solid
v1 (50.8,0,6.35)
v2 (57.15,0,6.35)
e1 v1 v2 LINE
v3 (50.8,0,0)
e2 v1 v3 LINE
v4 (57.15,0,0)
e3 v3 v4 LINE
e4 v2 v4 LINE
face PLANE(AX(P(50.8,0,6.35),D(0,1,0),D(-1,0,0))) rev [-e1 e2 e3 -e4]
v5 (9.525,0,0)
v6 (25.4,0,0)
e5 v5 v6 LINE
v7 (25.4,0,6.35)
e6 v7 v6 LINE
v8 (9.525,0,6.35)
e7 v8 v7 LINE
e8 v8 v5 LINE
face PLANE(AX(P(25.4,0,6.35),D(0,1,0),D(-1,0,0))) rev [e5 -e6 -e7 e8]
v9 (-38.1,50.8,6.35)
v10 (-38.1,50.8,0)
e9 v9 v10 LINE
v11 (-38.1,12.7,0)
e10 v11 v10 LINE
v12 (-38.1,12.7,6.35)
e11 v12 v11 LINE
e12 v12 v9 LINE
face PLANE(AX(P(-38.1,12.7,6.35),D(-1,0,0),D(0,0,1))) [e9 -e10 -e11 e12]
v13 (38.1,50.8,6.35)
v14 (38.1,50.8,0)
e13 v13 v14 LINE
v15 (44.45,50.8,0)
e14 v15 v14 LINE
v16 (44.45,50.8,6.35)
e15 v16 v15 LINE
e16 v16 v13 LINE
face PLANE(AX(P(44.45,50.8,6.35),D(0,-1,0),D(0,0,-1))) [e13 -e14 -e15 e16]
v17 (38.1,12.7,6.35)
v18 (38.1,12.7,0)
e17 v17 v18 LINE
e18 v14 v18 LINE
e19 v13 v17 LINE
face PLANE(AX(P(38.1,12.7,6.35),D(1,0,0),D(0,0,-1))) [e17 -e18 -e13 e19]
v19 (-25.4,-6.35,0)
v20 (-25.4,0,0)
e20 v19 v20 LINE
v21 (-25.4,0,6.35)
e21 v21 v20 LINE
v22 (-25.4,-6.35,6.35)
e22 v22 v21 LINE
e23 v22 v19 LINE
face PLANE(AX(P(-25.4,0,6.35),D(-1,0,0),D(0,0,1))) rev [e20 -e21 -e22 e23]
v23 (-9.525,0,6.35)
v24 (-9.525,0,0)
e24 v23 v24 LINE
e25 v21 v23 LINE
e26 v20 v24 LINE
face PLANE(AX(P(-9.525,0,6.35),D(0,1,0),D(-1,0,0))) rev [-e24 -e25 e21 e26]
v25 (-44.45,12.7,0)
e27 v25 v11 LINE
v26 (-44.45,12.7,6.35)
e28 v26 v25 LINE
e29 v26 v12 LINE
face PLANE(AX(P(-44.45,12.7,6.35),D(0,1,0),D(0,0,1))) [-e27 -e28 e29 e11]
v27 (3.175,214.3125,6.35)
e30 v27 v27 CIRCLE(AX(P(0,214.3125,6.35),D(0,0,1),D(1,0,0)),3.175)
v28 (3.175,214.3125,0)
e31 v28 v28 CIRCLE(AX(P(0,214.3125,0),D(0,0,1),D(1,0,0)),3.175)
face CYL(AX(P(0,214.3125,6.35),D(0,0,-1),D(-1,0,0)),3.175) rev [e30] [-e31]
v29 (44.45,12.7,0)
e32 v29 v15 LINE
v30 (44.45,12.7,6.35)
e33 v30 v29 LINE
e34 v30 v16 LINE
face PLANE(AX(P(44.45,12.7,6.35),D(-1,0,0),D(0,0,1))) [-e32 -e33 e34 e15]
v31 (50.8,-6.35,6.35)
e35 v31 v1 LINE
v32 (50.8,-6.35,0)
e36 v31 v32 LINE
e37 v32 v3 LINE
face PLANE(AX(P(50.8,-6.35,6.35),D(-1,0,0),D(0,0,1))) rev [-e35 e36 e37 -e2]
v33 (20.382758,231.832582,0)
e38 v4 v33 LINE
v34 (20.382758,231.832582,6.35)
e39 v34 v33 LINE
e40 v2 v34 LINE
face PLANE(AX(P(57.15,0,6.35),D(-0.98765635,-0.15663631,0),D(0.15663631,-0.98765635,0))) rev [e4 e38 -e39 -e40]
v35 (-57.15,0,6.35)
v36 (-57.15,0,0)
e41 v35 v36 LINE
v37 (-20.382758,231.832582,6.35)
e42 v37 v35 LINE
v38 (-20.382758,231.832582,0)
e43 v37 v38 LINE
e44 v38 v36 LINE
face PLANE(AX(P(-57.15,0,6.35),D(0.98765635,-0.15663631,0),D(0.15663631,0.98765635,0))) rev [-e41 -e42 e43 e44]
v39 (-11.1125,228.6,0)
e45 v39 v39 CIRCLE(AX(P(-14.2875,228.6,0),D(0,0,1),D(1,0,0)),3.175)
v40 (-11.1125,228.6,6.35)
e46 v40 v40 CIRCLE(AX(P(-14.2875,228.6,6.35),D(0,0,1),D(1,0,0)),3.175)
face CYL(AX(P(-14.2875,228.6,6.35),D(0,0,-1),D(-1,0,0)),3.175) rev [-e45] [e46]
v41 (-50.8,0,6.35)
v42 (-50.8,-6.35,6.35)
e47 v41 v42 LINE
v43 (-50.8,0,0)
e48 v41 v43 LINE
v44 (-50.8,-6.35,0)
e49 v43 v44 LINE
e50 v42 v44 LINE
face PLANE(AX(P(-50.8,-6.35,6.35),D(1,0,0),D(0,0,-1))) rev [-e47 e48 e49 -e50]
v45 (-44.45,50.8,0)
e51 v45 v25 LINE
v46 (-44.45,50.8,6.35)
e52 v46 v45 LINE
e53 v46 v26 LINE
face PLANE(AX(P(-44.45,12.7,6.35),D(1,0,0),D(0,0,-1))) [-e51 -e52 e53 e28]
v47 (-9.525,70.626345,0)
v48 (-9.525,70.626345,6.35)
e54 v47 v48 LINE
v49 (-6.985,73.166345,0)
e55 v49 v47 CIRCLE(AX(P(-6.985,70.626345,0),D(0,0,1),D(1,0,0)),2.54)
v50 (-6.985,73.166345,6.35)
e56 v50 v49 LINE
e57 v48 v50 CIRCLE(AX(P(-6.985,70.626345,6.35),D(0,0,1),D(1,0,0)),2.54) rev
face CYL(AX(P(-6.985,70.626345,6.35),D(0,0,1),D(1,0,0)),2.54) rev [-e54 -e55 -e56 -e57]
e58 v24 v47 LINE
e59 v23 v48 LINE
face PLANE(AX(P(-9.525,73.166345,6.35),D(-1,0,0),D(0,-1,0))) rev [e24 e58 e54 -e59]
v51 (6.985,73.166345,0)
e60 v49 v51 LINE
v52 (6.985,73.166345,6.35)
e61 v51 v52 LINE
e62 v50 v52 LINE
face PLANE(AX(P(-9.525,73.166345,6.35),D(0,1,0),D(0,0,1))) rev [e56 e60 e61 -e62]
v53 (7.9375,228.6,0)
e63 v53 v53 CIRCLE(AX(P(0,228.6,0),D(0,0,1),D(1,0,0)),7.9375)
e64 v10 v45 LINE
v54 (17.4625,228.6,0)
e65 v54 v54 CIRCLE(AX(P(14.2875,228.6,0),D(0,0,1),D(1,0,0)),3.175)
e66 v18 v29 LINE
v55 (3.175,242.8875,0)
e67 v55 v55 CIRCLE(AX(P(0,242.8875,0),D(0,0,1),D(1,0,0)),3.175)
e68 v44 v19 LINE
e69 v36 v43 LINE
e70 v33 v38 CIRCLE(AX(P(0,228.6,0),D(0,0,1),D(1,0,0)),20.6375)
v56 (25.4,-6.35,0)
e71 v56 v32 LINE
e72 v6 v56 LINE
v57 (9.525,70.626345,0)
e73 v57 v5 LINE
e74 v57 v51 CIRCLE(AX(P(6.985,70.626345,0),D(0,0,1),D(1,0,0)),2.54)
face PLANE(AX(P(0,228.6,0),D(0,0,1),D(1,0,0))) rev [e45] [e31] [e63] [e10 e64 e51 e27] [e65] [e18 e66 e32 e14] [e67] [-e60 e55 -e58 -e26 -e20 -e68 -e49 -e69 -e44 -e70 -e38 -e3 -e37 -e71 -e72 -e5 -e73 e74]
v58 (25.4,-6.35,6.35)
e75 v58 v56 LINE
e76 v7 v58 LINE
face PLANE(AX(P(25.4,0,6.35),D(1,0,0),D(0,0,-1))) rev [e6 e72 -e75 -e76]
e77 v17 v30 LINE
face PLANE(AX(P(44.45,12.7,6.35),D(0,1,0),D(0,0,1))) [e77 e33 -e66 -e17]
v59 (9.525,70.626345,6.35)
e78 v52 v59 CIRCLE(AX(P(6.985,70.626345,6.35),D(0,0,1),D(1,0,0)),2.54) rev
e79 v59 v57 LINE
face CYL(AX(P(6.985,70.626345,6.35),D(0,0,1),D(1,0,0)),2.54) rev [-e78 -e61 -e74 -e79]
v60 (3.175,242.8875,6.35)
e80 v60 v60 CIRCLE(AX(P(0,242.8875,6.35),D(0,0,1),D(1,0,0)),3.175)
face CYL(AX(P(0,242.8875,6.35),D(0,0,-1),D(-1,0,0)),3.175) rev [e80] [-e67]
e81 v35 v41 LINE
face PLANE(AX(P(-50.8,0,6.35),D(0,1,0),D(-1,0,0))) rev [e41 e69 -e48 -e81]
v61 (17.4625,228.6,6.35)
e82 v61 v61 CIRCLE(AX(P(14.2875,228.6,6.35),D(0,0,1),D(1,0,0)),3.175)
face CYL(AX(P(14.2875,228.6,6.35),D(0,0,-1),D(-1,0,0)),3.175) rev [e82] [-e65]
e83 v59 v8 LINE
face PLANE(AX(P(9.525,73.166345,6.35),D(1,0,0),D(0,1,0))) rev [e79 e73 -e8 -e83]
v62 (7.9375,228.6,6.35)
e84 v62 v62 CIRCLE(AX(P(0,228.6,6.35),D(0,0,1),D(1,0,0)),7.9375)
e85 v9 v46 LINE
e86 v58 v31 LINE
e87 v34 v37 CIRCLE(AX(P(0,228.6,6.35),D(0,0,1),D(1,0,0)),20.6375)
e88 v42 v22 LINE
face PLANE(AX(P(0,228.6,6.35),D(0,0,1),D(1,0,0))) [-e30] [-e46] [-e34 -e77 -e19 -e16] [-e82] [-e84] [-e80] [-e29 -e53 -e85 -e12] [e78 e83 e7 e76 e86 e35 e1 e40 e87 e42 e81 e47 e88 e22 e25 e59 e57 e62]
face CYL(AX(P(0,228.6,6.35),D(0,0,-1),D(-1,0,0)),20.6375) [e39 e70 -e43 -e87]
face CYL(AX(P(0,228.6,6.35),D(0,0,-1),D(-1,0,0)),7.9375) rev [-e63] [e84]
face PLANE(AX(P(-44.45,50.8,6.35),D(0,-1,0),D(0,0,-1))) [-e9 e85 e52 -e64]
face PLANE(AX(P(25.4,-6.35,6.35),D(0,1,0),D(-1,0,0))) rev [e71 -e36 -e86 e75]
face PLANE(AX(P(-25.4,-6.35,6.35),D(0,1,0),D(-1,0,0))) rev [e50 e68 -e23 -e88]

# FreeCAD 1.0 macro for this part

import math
import FreeCAD as App
import Part
import Sketcher
Q = App.Units.Quantity


def edges_at(feature, points):
    """Names of the edges that pass closest to the given points."""
    edges = feature.Shape.Edges
    near = lambda p: min(range(len(edges)), key=lambda i: edges[i].distToShape(Part.Vertex(*p))[0])
    return sorted({f"Edge{near(p) + 1}" for p in points})


def add_polygon(sketch, points):
    """Adds a closed chain of lines whose ends are joined by coincident constraints."""
    first, n = sketch.GeometryCount, len(points)
    for a, b in zip(points, points[1:] + points[:1]):
        sketch.addGeometry(Part.LineSegment(App.Vector(*a, 0), App.Vector(*b, 0)), False)
    for i in range(n):
        sketch.addConstraint(Sketcher.Constraint("Coincident", first + i, 2, first + (i + 1) % n, 1))

doc = App.newDocument("Part")
params = doc.addObject("Spreadsheet::Sheet", "Params")
for row, (alias, value) in enumerate([
    ("sketch1_diameter", "0.25 in"),
    ("sketch1_width", "1 in"),
    ("sketch1_diameter2", "0.625 in"),
    ("sketch1_height", "1.5 in"),
    ("sketch1_radius", "0.8125 in"),
    ("pad1_length", "0.25 in"),
    ("fillet_radius", "0.1 in"),
    ("fillet2_radius", "0.1 in"),
], start=1):
    params.set(f"A{row}", alias)
    params.set(f"B{row}", "=" + value)
    params.setAlias(f"B{row}", alias)

body = doc.addObject("PartDesign::Body", "Body")

# Sketch on XY plane
sketch1 = doc.addObject("Sketcher::SketchObject", "Sketch")
body.addObject(sketch1)
sketch1.AttachmentSupport = (doc.XY_Plane, [""])
sketch1.MapMode = "FlatFace"
sketch1.addGeometry(Part.LineSegment(App.Vector(9.5, 0, 0), App.Vector(25.4, 0, 0)), False)  # 0
sketch1.addGeometry(Part.LineSegment(App.Vector(25.4, 0, 0), App.Vector(25.4, -6.3, 0)), False)  # 1
sketch1.addGeometry(Part.LineSegment(App.Vector(25.4, -6.3, 0), App.Vector(50.8, -6.3, 0)), False)  # 2
sketch1.addGeometry(Part.LineSegment(App.Vector(50.8, -6.3, 0), App.Vector(50.8, 0, 0)), False)  # 3
sketch1.addGeometry(Part.LineSegment(App.Vector(50.8, 0, 0), App.Vector(57.1, 0, 0)), False)  # 4
sketch1.addGeometry(Part.LineSegment(App.Vector(57.1, 0, 0), App.Vector(20.4, 231.8, 0)), False)  # 5
sketch1.addGeometry(Part.ArcOfCircle(Part.Circle(App.Vector(0, 228.6, 0), App.Vector(0, 0, 1), 20.6), math.radians(9), math.radians(171)), False)  # 6
sketch1.addGeometry(Part.LineSegment(App.Vector(-20.4, 231.8, 0), App.Vector(-57.1, 0, 0)), False)  # 7
sketch1.addGeometry(Part.LineSegment(App.Vector(-57.1, 0, 0), App.Vector(-50.8, 0, 0)), False)  # 8
sketch1.addGeometry(Part.LineSegment(App.Vector(-50.8, 0, 0), App.Vector(-50.8, -6.3, 0)), False)  # 9
sketch1.addGeometry(Part.LineSegment(App.Vector(-50.8, -6.3, 0), App.Vector(-25.4, -6.3, 0)), False)  # 10
sketch1.addGeometry(Part.LineSegment(App.Vector(-25.4, -6.3, 0), App.Vector(-25.4, 0, 0)), False)  # 11
sketch1.addGeometry(Part.LineSegment(App.Vector(-25.4, 0, 0), App.Vector(-9.5, 0, 0)), False)  # 12
sketch1.addGeometry(Part.LineSegment(App.Vector(-9.5, 0, 0), App.Vector(-9.5, 73.2, 0)), False)  # 13
sketch1.addGeometry(Part.LineSegment(App.Vector(-9.5, 73.2, 0), App.Vector(9.5, 73.2, 0)), False)  # 14
sketch1.addGeometry(Part.LineSegment(App.Vector(9.5, 73.2, 0), App.Vector(9.5, 0, 0)), False)  # 15
add_polygon(sketch1, [(38.1, 12.7), (38.1, 50.8), (44.5, 50.8), (44.5, 12.7)])  # lines 16-19
add_polygon(sketch1, [(-44.5, 12.7), (-44.5, 50.8), (-38.1, 50.8), (-38.1, 12.7)])  # lines 20-23
sketch1.addGeometry(Part.Circle(App.Vector(14.3, 228.6, 0), App.Vector(0, 0, 1), 3.2), False)  # 24
sketch1.addGeometry(Part.Circle(App.Vector(0, 214.3, 0), App.Vector(0, 0, 1), 3.2), False)  # 25
sketch1.addGeometry(Part.Circle(App.Vector(0, 228.6, 0), App.Vector(0, 0, 1), 7.9), False)  # 26
sketch1.addGeometry(Part.Circle(App.Vector(0, 242.9, 0), App.Vector(0, 0, 1), 3.2), False)  # 27
sketch1.addGeometry(Part.Circle(App.Vector(-14.3, 228.6, 0), App.Vector(0, 0, 1), 3.2), False)  # 28
sketch1.addConstraint(Sketcher.Constraint("Coincident", 0, 2, 1, 1))
sketch1.addConstraint(Sketcher.Constraint("Coincident", 1, 2, 2, 1))
sketch1.addConstraint(Sketcher.Constraint("Coincident", 2, 2, 3, 1))
sketch1.addConstraint(Sketcher.Constraint("Coincident", 3, 2, 4, 1))
sketch1.addConstraint(Sketcher.Constraint("Coincident", 4, 2, 5, 1))
sketch1.addConstraint(Sketcher.Constraint("Tangent", 5, 2, 6, 1))
sketch1.addConstraint(Sketcher.Constraint("Tangent", 6, 2, 7, 1))
sketch1.addConstraint(Sketcher.Constraint("Coincident", 7, 2, 8, 1))
sketch1.addConstraint(Sketcher.Constraint("Coincident", 8, 2, 9, 1))
sketch1.addConstraint(Sketcher.Constraint("Coincident", 9, 2, 10, 1))
sketch1.addConstraint(Sketcher.Constraint("Coincident", 10, 2, 11, 1))
sketch1.addConstraint(Sketcher.Constraint("Coincident", 11, 2, 12, 1))
sketch1.addConstraint(Sketcher.Constraint("Coincident", 12, 2, 13, 1))
sketch1.addConstraint(Sketcher.Constraint("Coincident", 13, 2, 14, 1))
sketch1.addConstraint(Sketcher.Constraint("Coincident", 14, 2, 15, 1))
sketch1.addConstraint(Sketcher.Constraint("Coincident", 15, 2, 0, 1))
sketch1.addConstraint(Sketcher.Constraint("Horizontal", 0))
sketch1.addConstraint(Sketcher.Constraint("Vertical", 1))
sketch1.addConstraint(Sketcher.Constraint("Horizontal", 2))
sketch1.addConstraint(Sketcher.Constraint("Vertical", 3))
sketch1.addConstraint(Sketcher.Constraint("Horizontal", 4))
sketch1.addConstraint(Sketcher.Constraint("Horizontal", 8))
sketch1.addConstraint(Sketcher.Constraint("Vertical", 9))
sketch1.addConstraint(Sketcher.Constraint("Horizontal", 10))
sketch1.addConstraint(Sketcher.Constraint("Vertical", 11))
sketch1.addConstraint(Sketcher.Constraint("Horizontal", 12))
sketch1.addConstraint(Sketcher.Constraint("Vertical", 13))
sketch1.addConstraint(Sketcher.Constraint("Horizontal", 14))
sketch1.addConstraint(Sketcher.Constraint("Vertical", 15))
sketch1.addConstraint(Sketcher.Constraint("Vertical", 16))
sketch1.addConstraint(Sketcher.Constraint("Horizontal", 17))
sketch1.addConstraint(Sketcher.Constraint("Vertical", 18))
sketch1.addConstraint(Sketcher.Constraint("Horizontal", 19))
sketch1.addConstraint(Sketcher.Constraint("Vertical", 20))
sketch1.addConstraint(Sketcher.Constraint("Horizontal", 21))
sketch1.addConstraint(Sketcher.Constraint("Vertical", 22))
sketch1.addConstraint(Sketcher.Constraint("Horizontal", 23))
sketch1.addConstraint(Sketcher.Constraint("Coincident", 26, 3, 6, 3))
sketch1.addConstraint(Sketcher.Constraint("Equal", 24, 25))
sketch1.addConstraint(Sketcher.Constraint("Equal", 25, 27))
sketch1.addConstraint(Sketcher.Constraint("Equal", 27, 28))
sketch1.addConstraint(Sketcher.Constraint("Symmetric", 4, 2, 7, 2, -1, 1))
sketch1.addConstraint(Sketcher.Constraint("Symmetric", 0, 2, 11, 2, -1, 1))
sketch1.addConstraint(Sketcher.Constraint("Symmetric", 24, 3, 28, 3, -2))
sketch1.addConstraint(Sketcher.Constraint("Symmetric", 3, 2, 8, 2, -2))
sketch1.addConstraint(Sketcher.Constraint("Symmetric", 12, 2, 15, 2, -2))
sketch1.addConstraint(Sketcher.Constraint("Symmetric", 17, 2, 20, 2, -2))
sketch1.addConstraint(Sketcher.Constraint("Symmetric", 19, 2, 22, 2, -2))
sketch1.addConstraint(Sketcher.Constraint("PointOnObject", 6, 3, -2))
sketch1.addConstraint(Sketcher.Constraint("PointOnObject", 25, 3, -2))
sketch1.addConstraint(Sketcher.Constraint("PointOnObject", 27, 3, -2))
sketch1.addConstraint(Sketcher.Constraint("Horizontal", 6, 3, 24, 3))
sketch1.addConstraint(Sketcher.Constraint("Horizontal", 2, 2, 9, 2))
sketch1.addConstraint(Sketcher.Constraint("Equal", 8, 17))
sketch1.addConstraint(Sketcher.Constraint("Equal", 23, 1))
sketch1.addConstraint(Sketcher.Constraint("Diameter", 24, Q("0.25 in")))
sketch1.addConstraint(Sketcher.Constraint("DistanceX", 2, 1, 2, 2, Q("1 in")))
sketch1.addConstraint(Sketcher.Constraint("Diameter", 26, Q("0.625 in")))
sketch1.addConstraint(Sketcher.Constraint("DistanceY", 16, 1, 16, 2, Q("1.5 in")))
sketch1.addConstraint(Sketcher.Constraint("DistanceY", -1, 1, 6, 3, Q("9 in")))
sketch1.addConstraint(Sketcher.Constraint("DistanceX", -1, 1, 0, 2, Q("1 in")))
sketch1.addConstraint(Sketcher.Constraint("DistanceY", -1, 1, 16, 2, Q("2 in")))
sketch1.addConstraint(Sketcher.Constraint("Radius", 6, Q("0.8125 in")))
sketch1.addConstraint(Sketcher.Constraint("DistanceX", 4, 1, 4, 2, Q("0.25 in")))
sketch1.addConstraint(Sketcher.Constraint("DistanceX", 14, 1, 14, 2, Q("0.75 in")))
sketch1.addConstraint(Sketcher.Constraint("DistanceX", -1, 1, 16, 2, Q("1.5 in")))
sketch1.addConstraint(Sketcher.Constraint("DistanceX", -1, 1, 24, 3, Q("0.5625 in")))
sketch1.addConstraint(Sketcher.Constraint("DistanceY", -1, 1, 25, 3, Q("8.4375 in")))
sketch1.addConstraint(Sketcher.Constraint("DistanceY", -1, 1, 27, 3, Q("9.5625 in")))
sketch1.addConstraint(Sketcher.Constraint("DistanceY", 13, 1, 13, 2, 73.166345))
sketch1.setExpression("Constraints[63]", "Params.sketch1_diameter")
sketch1.setExpression("Constraints[64]", "Params.sketch1_width")
sketch1.setExpression("Constraints[65]", "Params.sketch1_diameter2")
sketch1.setExpression("Constraints[66]", "Params.sketch1_height")
sketch1.setExpression("Constraints[70]", "Params.sketch1_radius")
pad1 = doc.addObject("PartDesign::Pad", "Pad")
body.addObject(pad1)
pad1.Profile = sketch1
pad1.setExpression("Length", "Params.pad1_length")
doc.recompute()

fillet = doc.addObject("PartDesign::Fillet", "Fillet")
body.addObject(fillet)
fillet.Base = (pad1, edges_at(pad1, [(-9.525, 73.166, 3.175)]))
fillet.setExpression("Radius", "Params.fillet_radius")
doc.recompute()

fillet2 = doc.addObject("PartDesign::Fillet", "Fillet001")
body.addObject(fillet2)
fillet2.Base = (fillet, edges_at(fillet, [(9.525, 73.166, 3.175)]))
fillet2.setExpression("Radius", "Params.fillet2_radius")

doc.recompute()
